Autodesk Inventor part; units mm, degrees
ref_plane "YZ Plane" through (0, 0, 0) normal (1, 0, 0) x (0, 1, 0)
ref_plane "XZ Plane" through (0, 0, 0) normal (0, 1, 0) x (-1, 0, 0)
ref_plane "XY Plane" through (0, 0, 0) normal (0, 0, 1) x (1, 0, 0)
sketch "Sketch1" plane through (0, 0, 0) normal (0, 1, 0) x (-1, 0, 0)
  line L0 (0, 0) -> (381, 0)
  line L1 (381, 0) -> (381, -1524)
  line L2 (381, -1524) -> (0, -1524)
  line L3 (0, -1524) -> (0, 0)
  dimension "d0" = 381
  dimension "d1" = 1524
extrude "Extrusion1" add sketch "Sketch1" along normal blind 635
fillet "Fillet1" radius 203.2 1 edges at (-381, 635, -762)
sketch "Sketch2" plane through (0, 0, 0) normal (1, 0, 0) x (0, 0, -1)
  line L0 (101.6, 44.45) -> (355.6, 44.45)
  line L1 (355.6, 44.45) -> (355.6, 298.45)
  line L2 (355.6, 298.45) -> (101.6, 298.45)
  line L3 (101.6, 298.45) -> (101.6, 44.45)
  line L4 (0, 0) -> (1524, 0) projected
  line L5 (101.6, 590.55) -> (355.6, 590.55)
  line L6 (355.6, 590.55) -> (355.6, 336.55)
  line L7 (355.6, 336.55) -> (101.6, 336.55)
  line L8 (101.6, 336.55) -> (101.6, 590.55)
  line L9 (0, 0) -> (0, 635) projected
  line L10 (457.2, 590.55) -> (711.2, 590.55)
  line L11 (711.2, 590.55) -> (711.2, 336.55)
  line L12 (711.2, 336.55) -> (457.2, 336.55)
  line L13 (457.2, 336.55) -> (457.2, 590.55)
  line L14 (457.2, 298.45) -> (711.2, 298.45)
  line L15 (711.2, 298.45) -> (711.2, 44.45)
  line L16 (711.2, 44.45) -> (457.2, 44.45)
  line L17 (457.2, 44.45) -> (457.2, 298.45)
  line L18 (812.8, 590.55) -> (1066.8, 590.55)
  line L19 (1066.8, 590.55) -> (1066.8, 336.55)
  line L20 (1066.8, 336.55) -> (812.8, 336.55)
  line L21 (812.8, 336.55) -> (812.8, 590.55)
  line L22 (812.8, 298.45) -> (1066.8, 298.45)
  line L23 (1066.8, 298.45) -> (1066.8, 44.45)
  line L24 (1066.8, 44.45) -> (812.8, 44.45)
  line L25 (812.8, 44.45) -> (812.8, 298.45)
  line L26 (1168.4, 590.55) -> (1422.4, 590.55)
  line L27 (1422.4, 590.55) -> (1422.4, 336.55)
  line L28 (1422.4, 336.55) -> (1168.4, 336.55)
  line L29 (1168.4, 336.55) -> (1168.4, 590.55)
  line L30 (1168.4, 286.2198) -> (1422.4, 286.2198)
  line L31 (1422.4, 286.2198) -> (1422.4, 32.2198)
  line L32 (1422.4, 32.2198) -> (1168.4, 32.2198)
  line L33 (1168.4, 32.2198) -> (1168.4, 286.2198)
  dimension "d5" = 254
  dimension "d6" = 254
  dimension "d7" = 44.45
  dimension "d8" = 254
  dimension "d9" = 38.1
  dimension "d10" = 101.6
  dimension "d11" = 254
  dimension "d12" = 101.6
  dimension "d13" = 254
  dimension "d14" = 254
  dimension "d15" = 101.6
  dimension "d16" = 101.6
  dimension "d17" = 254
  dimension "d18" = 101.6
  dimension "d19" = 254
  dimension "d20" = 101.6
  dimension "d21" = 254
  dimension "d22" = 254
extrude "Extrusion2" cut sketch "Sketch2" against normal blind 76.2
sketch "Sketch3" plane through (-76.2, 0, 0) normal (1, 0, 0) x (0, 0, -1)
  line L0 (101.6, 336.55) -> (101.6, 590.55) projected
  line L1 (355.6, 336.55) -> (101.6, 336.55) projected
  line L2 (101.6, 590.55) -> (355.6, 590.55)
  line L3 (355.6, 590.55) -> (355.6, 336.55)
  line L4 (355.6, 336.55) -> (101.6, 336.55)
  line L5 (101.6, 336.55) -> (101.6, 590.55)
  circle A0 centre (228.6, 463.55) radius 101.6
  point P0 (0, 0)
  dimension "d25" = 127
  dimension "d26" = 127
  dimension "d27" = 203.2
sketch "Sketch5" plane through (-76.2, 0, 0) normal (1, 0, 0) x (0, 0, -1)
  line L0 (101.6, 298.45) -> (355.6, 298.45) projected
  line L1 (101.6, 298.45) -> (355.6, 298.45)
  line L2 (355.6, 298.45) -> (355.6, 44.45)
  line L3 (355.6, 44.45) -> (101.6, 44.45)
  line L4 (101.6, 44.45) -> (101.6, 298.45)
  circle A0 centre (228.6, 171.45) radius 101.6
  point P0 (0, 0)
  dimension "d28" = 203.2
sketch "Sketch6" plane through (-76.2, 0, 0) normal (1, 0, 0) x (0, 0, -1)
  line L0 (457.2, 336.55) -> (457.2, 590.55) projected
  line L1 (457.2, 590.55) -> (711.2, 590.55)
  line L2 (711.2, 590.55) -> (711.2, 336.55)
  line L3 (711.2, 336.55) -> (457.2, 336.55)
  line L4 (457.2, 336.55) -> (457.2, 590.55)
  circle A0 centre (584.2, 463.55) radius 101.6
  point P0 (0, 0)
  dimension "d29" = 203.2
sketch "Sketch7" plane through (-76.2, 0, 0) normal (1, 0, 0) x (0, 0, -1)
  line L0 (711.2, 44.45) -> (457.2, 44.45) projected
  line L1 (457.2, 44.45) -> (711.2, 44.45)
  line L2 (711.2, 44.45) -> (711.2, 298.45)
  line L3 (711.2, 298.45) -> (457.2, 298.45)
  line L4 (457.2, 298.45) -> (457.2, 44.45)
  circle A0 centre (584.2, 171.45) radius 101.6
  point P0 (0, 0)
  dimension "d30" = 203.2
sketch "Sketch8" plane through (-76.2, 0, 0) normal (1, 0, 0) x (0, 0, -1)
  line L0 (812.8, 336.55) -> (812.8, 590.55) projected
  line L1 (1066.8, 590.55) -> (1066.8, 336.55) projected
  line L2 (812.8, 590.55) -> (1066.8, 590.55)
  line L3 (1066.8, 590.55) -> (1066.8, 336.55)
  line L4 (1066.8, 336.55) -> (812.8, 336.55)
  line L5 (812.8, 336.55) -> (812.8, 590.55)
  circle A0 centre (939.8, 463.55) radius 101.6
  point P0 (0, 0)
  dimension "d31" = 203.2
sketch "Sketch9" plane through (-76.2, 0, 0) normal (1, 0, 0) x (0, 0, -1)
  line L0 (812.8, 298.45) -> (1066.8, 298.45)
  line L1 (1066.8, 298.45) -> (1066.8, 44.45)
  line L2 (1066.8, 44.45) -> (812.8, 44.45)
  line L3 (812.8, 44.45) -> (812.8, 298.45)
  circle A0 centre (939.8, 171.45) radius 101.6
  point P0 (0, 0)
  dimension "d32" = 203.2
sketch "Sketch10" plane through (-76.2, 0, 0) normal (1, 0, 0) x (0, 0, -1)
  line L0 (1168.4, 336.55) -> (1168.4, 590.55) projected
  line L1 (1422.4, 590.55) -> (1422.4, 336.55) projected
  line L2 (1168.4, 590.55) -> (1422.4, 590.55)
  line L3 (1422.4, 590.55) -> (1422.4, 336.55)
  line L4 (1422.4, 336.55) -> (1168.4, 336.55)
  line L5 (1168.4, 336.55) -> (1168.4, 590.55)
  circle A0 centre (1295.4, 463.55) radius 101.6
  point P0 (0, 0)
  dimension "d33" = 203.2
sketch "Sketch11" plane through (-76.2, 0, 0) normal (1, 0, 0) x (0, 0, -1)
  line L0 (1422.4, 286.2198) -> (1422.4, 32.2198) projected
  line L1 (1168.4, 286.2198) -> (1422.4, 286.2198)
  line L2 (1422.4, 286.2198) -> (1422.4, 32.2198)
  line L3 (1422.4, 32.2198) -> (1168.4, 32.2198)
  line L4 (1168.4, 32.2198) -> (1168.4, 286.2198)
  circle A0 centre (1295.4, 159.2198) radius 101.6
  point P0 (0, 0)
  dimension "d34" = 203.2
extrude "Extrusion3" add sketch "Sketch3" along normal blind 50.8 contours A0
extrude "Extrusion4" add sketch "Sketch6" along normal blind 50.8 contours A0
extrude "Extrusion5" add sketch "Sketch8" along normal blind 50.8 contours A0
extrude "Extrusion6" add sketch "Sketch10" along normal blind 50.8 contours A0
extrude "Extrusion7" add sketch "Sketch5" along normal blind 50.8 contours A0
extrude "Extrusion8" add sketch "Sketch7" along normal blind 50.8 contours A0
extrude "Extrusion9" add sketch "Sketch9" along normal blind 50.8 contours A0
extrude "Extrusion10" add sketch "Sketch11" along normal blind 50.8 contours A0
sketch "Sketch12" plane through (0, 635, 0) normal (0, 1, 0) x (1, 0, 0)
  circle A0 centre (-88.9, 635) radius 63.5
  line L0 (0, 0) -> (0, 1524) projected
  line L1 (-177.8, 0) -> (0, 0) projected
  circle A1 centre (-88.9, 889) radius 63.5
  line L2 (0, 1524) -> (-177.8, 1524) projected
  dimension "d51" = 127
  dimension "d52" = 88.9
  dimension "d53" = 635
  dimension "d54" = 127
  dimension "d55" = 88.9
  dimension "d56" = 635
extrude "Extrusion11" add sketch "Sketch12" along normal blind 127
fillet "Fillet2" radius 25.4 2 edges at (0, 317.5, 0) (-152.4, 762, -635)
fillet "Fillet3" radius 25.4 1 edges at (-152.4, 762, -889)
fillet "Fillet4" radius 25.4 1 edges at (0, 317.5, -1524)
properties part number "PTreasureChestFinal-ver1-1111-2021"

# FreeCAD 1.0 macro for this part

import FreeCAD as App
import Part
import Sketcher
from FreeCAD import Vector
Q = App.Units.Quantity


def edges_at(feature, points):
    """Names of the edges that pass closest to the given points."""
    edges = feature.Shape.Edges
    near = lambda p: min(range(len(edges)), key=lambda i: edges[i].distToShape(Part.Vertex(*p))[0])
    return sorted({f"Edge{near(p) + 1}" for p in points})

doc = App.newDocument("Part")
params = doc.addObject("Spreadsheet::Sheet", "Params")
for row, (alias, value) in enumerate([
    ("sketch1_width", "15 in"),
    ("sketch1_height", "60 in"),
    ("pad1_length", "25 in"),
    ("fillet_radius", "8 in"),
    ("sketch2_width", "10 in"),
    ("pocket1_length", "3 in"),
    ("sketch3_diameter", "8 in"),
    ("pad2_length", "2 in"),
    ("sketch4_diameter", "8 in"),
    ("pad3_length", "2 in"),
    ("sketch5_diameter", "8 in"),
    ("pad4_length", "2 in"),
    ("sketch6_diameter", "8 in"),
    ("pad5_length", "2 in"),
    ("sketch7_diameter", "8 in"),
    ("pad6_length", "2 in"),
    ("sketch8_diameter", "8 in"),
    ("pad7_length", "2 in"),
    ("sketch9_diameter", "8 in"),
    ("pad8_length", "2 in"),
    ("sketch10_diameter", "8 in"),
    ("pad9_length", "2 in"),
    ("sketch11_diameter", "5 in"),
    ("pad10_length", "5 in"),
    ("fillet2_radius", "1 in"),
    ("fillet3_radius", "1 in"),
    ("fillet4_radius", "1 in"),
], start=1):
    params.set(f"A{row}", alias)
    params.set(f"B{row}", "=" + value)
    params.setAlias(f"B{row}", alias)

body = doc.addObject("PartDesign::Body", "Body")

# Sketch on XZ plane
sketch1 = body.newObject("Sketcher::SketchObject", "Sketch")
sketch1.AttachmentSupport = (doc.getObject("XZ_Plane"), [""])
sketch1.MapMode = "FlatFace"
sketch1.addGeometry(Part.LineSegment(Vector(-381, 0, 0), Vector(0, 0, 0)), False)
sketch1.addGeometry(Part.LineSegment(Vector(0, 0, 0), Vector(0, -1524, 0)), False)
sketch1.addGeometry(Part.LineSegment(Vector(0, -1524, 0), Vector(-381, -1524, 0)), False)
sketch1.addGeometry(Part.LineSegment(Vector(-381, -1524, 0), Vector(-381, 0, 0)), False)
sketch1.addConstraint(Sketcher.Constraint("Coincident", 0, 2, 1, 1))
sketch1.addConstraint(Sketcher.Constraint("Coincident", 1, 2, 2, 1))
sketch1.addConstraint(Sketcher.Constraint("Coincident", 2, 2, 3, 1))
sketch1.addConstraint(Sketcher.Constraint("Coincident", 3, 2, 0, 1))
sketch1.addConstraint(Sketcher.Constraint("Horizontal", 0))
sketch1.addConstraint(Sketcher.Constraint("Vertical", 1))
sketch1.addConstraint(Sketcher.Constraint("Horizontal", 2))
sketch1.addConstraint(Sketcher.Constraint("Vertical", 3))
sketch1.addConstraint(Sketcher.Constraint("Coincident", 0, 2, -1, 1))
sketch1.addConstraint(Sketcher.Constraint("DistanceX", 0, 1, 0, 2, Q("15 in")))
sketch1.addConstraint(Sketcher.Constraint("DistanceY", 1, 2, 1, 1, Q("60 in")))
sketch1.setExpression("Constraints[9]", "Params.sketch1_width")
sketch1.setExpression("Constraints[10]", "Params.sketch1_height")
pad1 = body.newObject("PartDesign::Pad", "Pad")
pad1.Profile = sketch1
pad1.setExpression("Length", "Params.pad1_length")
pad1.Reversed = True
doc.recompute()

fillet = body.newObject("PartDesign::Fillet", "Fillet")
fillet.Base = (pad1, edges_at(pad1, [(-381, 635, -762)]))
fillet.setExpression("Radius", "Params.fillet_radius")

# Sketch on YZ plane
sketch2 = body.newObject("Sketcher::SketchObject", "Sketch001")
sketch2.AttachmentSupport = (doc.getObject("YZ_Plane"), [""])
sketch2.MapMode = "FlatFace"
sketch2.addGeometry(Part.LineSegment(Vector(298.45, -101.6, 0), Vector(44.45, -101.6, 0)), False)
sketch2.addGeometry(Part.LineSegment(Vector(44.45, -101.6, 0), Vector(44.45, -355.6, 0)), False)
sketch2.addGeometry(Part.LineSegment(Vector(44.45, -355.6, 0), Vector(298.45, -355.6, 0)), False)
sketch2.addGeometry(Part.LineSegment(Vector(298.45, -355.6, 0), Vector(298.45, -101.6, 0)), False)
sketch2.addGeometry(Part.LineSegment(Vector(590.55, -355.6, 0), Vector(590.55, -101.6, 0)), False)
sketch2.addGeometry(Part.LineSegment(Vector(590.55, -101.6, 0), Vector(336.55, -101.6, 0)), False)
sketch2.addGeometry(Part.LineSegment(Vector(336.55, -101.6, 0), Vector(336.55, -355.6, 0)), False)
sketch2.addGeometry(Part.LineSegment(Vector(336.55, -355.6, 0), Vector(590.55, -355.6, 0)), False)
sketch2.addGeometry(Part.LineSegment(Vector(590.55, -711.2, 0), Vector(590.55, -457.2, 0)), False)
sketch2.addGeometry(Part.LineSegment(Vector(590.55, -457.2, 0), Vector(336.55, -457.2, 0)), False)
sketch2.addGeometry(Part.LineSegment(Vector(336.55, -457.2, 0), Vector(336.55, -711.2, 0)), False)
sketch2.addGeometry(Part.LineSegment(Vector(336.55, -711.2, 0), Vector(590.55, -711.2, 0)), False)
sketch2.addGeometry(Part.LineSegment(Vector(298.45, -711.2, 0), Vector(298.45, -457.2, 0)), False)
sketch2.addGeometry(Part.LineSegment(Vector(298.45, -457.2, 0), Vector(44.45, -457.2, 0)), False)
sketch2.addGeometry(Part.LineSegment(Vector(44.45, -457.2, 0), Vector(44.45, -711.2, 0)), False)
sketch2.addGeometry(Part.LineSegment(Vector(44.45, -711.2, 0), Vector(298.45, -711.2, 0)), False)
sketch2.addGeometry(Part.LineSegment(Vector(590.55, -1066.8, 0), Vector(590.55, -812.8, 0)), False)
sketch2.addGeometry(Part.LineSegment(Vector(590.55, -812.8, 0), Vector(336.55, -812.8, 0)), False)
sketch2.addGeometry(Part.LineSegment(Vector(336.55, -812.8, 0), Vector(336.55, -1066.8, 0)), False)
sketch2.addGeometry(Part.LineSegment(Vector(336.55, -1066.8, 0), Vector(590.55, -1066.8, 0)), False)
sketch2.addGeometry(Part.LineSegment(Vector(298.45, -1066.8, 0), Vector(298.45, -812.8, 0)), False)
sketch2.addGeometry(Part.LineSegment(Vector(298.45, -812.8, 0), Vector(44.45, -812.8, 0)), False)
sketch2.addGeometry(Part.LineSegment(Vector(44.45, -812.8, 0), Vector(44.45, -1066.8, 0)), False)
sketch2.addGeometry(Part.LineSegment(Vector(44.45, -1066.8, 0), Vector(298.45, -1066.8, 0)), False)
sketch2.addGeometry(Part.LineSegment(Vector(590.55, -1422.4, 0), Vector(590.55, -1168.4, 0)), False)
sketch2.addGeometry(Part.LineSegment(Vector(590.55, -1168.4, 0), Vector(336.55, -1168.4, 0)), False)
sketch2.addGeometry(Part.LineSegment(Vector(336.55, -1168.4, 0), Vector(336.55, -1422.4, 0)), False)
sketch2.addGeometry(Part.LineSegment(Vector(336.55, -1422.4, 0), Vector(590.55, -1422.4, 0)), False)
sketch2.addGeometry(Part.LineSegment(Vector(286.2198, -1422.4, 0), Vector(286.2198, -1168.4, 0)), False)
sketch2.addGeometry(Part.LineSegment(Vector(286.2198, -1168.4, 0), Vector(32.2198, -1168.4, 0)), False)
sketch2.addGeometry(Part.LineSegment(Vector(32.2198, -1168.4, 0), Vector(32.2198, -1422.4, 0)), False)
sketch2.addGeometry(Part.LineSegment(Vector(32.2198, -1422.4, 0), Vector(286.2198, -1422.4, 0)), False)
sketch2.addConstraint(Sketcher.Constraint("Coincident", 0, 2, 1, 1))
sketch2.addConstraint(Sketcher.Constraint("Coincident", 1, 2, 2, 1))
sketch2.addConstraint(Sketcher.Constraint("Coincident", 2, 2, 3, 1))
sketch2.addConstraint(Sketcher.Constraint("Coincident", 3, 2, 0, 1))
sketch2.addConstraint(Sketcher.Constraint("Coincident", 4, 2, 5, 1))
sketch2.addConstraint(Sketcher.Constraint("Coincident", 5, 2, 6, 1))
sketch2.addConstraint(Sketcher.Constraint("Coincident", 6, 2, 7, 1))
sketch2.addConstraint(Sketcher.Constraint("Coincident", 7, 2, 4, 1))
sketch2.addConstraint(Sketcher.Constraint("Coincident", 8, 2, 9, 1))
sketch2.addConstraint(Sketcher.Constraint("Coincident", 9, 2, 10, 1))
sketch2.addConstraint(Sketcher.Constraint("Coincident", 10, 2, 11, 1))
sketch2.addConstraint(Sketcher.Constraint("Coincident", 11, 2, 8, 1))
sketch2.addConstraint(Sketcher.Constraint("Coincident", 12, 2, 13, 1))
sketch2.addConstraint(Sketcher.Constraint("Coincident", 13, 2, 14, 1))
sketch2.addConstraint(Sketcher.Constraint("Coincident", 14, 2, 15, 1))
sketch2.addConstraint(Sketcher.Constraint("Coincident", 15, 2, 12, 1))
sketch2.addConstraint(Sketcher.Constraint("Coincident", 16, 2, 17, 1))
sketch2.addConstraint(Sketcher.Constraint("Coincident", 17, 2, 18, 1))
sketch2.addConstraint(Sketcher.Constraint("Coincident", 18, 2, 19, 1))
sketch2.addConstraint(Sketcher.Constraint("Coincident", 19, 2, 16, 1))
sketch2.addConstraint(Sketcher.Constraint("Coincident", 20, 2, 21, 1))
sketch2.addConstraint(Sketcher.Constraint("Coincident", 21, 2, 22, 1))
sketch2.addConstraint(Sketcher.Constraint("Coincident", 22, 2, 23, 1))
sketch2.addConstraint(Sketcher.Constraint("Coincident", 23, 2, 20, 1))
sketch2.addConstraint(Sketcher.Constraint("Coincident", 24, 2, 25, 1))
sketch2.addConstraint(Sketcher.Constraint("Coincident", 25, 2, 26, 1))
sketch2.addConstraint(Sketcher.Constraint("Coincident", 26, 2, 27, 1))
sketch2.addConstraint(Sketcher.Constraint("Coincident", 27, 2, 24, 1))
sketch2.addConstraint(Sketcher.Constraint("Coincident", 28, 2, 29, 1))
sketch2.addConstraint(Sketcher.Constraint("Coincident", 29, 2, 30, 1))
sketch2.addConstraint(Sketcher.Constraint("Coincident", 30, 2, 31, 1))
sketch2.addConstraint(Sketcher.Constraint("Coincident", 31, 2, 28, 1))
sketch2.addConstraint(Sketcher.Constraint("Horizontal", 0))
sketch2.addConstraint(Sketcher.Constraint("Vertical", 1))
sketch2.addConstraint(Sketcher.Constraint("Horizontal", 2))
sketch2.addConstraint(Sketcher.Constraint("Vertical", 3))
sketch2.addConstraint(Sketcher.Constraint("Vertical", 4))
sketch2.addConstraint(Sketcher.Constraint("Horizontal", 5))
sketch2.addConstraint(Sketcher.Constraint("Vertical", 6))
sketch2.addConstraint(Sketcher.Constraint("Horizontal", 7))
sketch2.addConstraint(Sketcher.Constraint("Vertical", 8))
sketch2.addConstraint(Sketcher.Constraint("Horizontal", 9))
sketch2.addConstraint(Sketcher.Constraint("Vertical", 10))
sketch2.addConstraint(Sketcher.Constraint("Horizontal", 11))
sketch2.addConstraint(Sketcher.Constraint("Vertical", 12))
sketch2.addConstraint(Sketcher.Constraint("Horizontal", 13))
sketch2.addConstraint(Sketcher.Constraint("Vertical", 14))
sketch2.addConstraint(Sketcher.Constraint("Horizontal", 15))
sketch2.addConstraint(Sketcher.Constraint("Vertical", 16))
sketch2.addConstraint(Sketcher.Constraint("Horizontal", 17))
sketch2.addConstraint(Sketcher.Constraint("Vertical", 18))
sketch2.addConstraint(Sketcher.Constraint("Horizontal", 19))
sketch2.addConstraint(Sketcher.Constraint("Vertical", 20))
sketch2.addConstraint(Sketcher.Constraint("Horizontal", 21))
sketch2.addConstraint(Sketcher.Constraint("Vertical", 22))
sketch2.addConstraint(Sketcher.Constraint("Horizontal", 23))
sketch2.addConstraint(Sketcher.Constraint("Vertical", 24))
sketch2.addConstraint(Sketcher.Constraint("Horizontal", 25))
sketch2.addConstraint(Sketcher.Constraint("Vertical", 26))
sketch2.addConstraint(Sketcher.Constraint("Horizontal", 27))
sketch2.addConstraint(Sketcher.Constraint("Vertical", 28))
sketch2.addConstraint(Sketcher.Constraint("Horizontal", 29))
sketch2.addConstraint(Sketcher.Constraint("Vertical", 30))
sketch2.addConstraint(Sketcher.Constraint("Horizontal", 31))
sketch2.addConstraint(Sketcher.Constraint("Horizontal", 3, 2, 4, 2))
sketch2.addConstraint(Sketcher.Constraint("Horizontal", 2, 2, 6, 2))
sketch2.addConstraint(Sketcher.Constraint("Horizontal", 9, 2, 12, 2))
sketch2.addConstraint(Sketcher.Constraint("Horizontal", 11, 2, 14, 2))
sketch2.addConstraint(Sketcher.Constraint("Horizontal", 17, 2, 20, 2))
sketch2.addConstraint(Sketcher.Constraint("Horizontal", 19, 2, 22, 2))
sketch2.addConstraint(Sketcher.Constraint("Horizontal", 25, 2, 28, 2))
sketch2.addConstraint(Sketcher.Constraint("Horizontal", 27, 2, 30, 2))
sketch2.addConstraint(Sketcher.Constraint("Vertical", 7, 2, 8, 2))
sketch2.addConstraint(Sketcher.Constraint("Vertical", 6, 2, 9, 2))
sketch2.addConstraint(Sketcher.Constraint("Vertical", 3, 2, 12, 2))
sketch2.addConstraint(Sketcher.Constraint("Vertical", 1, 2, 13, 2))
sketch2.addConstraint(Sketcher.Constraint("Vertical", 11, 2, 16, 2))
sketch2.addConstraint(Sketcher.Constraint("Vertical", 10, 2, 17, 2))
sketch2.addConstraint(Sketcher.Constraint("Vertical", 15, 2, 20, 2))
sketch2.addConstraint(Sketcher.Constraint("Vertical", 14, 2, 21, 2))
sketch2.addConstraint(Sketcher.Constraint("Vertical", 19, 2, 24, 2))
sketch2.addConstraint(Sketcher.Constraint("Vertical", 18, 2, 25, 2))
sketch2.addConstraint(Sketcher.Constraint("Equal", 2, 5))
sketch2.addConstraint(Sketcher.Constraint("Equal", 27, 29))
sketch2.addConstraint(Sketcher.Constraint("Equal", 31, 1))
sketch2.addConstraint(Sketcher.Constraint("Equal", 6, 8))
sketch2.addConstraint(Sketcher.Constraint("Equal", 14, 16))
sketch2.addConstraint(Sketcher.Constraint("Equal", 22, 24))
sketch2.addConstraint(Sketcher.Constraint("DistanceX", 0, 2, 0, 1, Q("10 in")))
sketch2.addConstraint(Sketcher.Constraint("DistanceY", 0, 2, -1, 1, Q("4 in")))
sketch2.addConstraint(Sketcher.Constraint("DistanceY", 8, 2, 7, 2, Q("4 in")))
sketch2.addConstraint(Sketcher.Constraint("DistanceY", 16, 2, 11, 2, Q("4 in")))
sketch2.addConstraint(Sketcher.Constraint("DistanceY", 24, 2, 19, 2, Q("4 in")))
sketch2.addConstraint(Sketcher.Constraint("DistanceX", 3, 2, 5, 2, Q("1.5 in")))
sketch2.addConstraint(Sketcher.Constraint("DistanceX", -1, 1, 0, 2, Q("1.75 in")))
sketch2.addConstraint(Sketcher.Constraint("DistanceX", -1, 1, 28, 2, Q("11.2685 in")))
sketch2.setExpression("Constraints[88]", "Params.sketch2_width")
pocket1 = body.newObject("PartDesign::Pocket", "Pocket")
pocket1.Profile = sketch2
pocket1.setExpression("Length", "Params.pocket1_length")

# Sketch on YZ plane
sketch3 = body.newObject("Sketcher::SketchObject", "Sketch002")
sketch3.AttachmentSupport = (doc.getObject("YZ_Plane"), [""])
sketch3.MapMode = "FlatFace"
sketch3.AttachmentOffset = App.Placement(Vector(0, 0, -3 * 25.4), App.Rotation())
sketch3.addGeometry(Part.Circle(Vector(463.55, -228.6, 0), Vector(0, 0, 1), 101.6), False)
sketch3.addConstraint(Sketcher.Constraint("Diameter", 0, Q("8 in")))
sketch3.addConstraint(Sketcher.Constraint("DistanceY", 0, 3, -1, 1, Q("9 in")))
sketch3.addConstraint(Sketcher.Constraint("DistanceX", -1, 1, 0, 3, Q("18.25 in")))
sketch3.setExpression("Constraints[0]", "Params.sketch3_diameter")
pad2 = body.newObject("PartDesign::Pad", "Pad001")
pad2.Profile = sketch3
pad2.setExpression("Length", "Params.pad2_length")

# Sketch on YZ plane
sketch4 = body.newObject("Sketcher::SketchObject", "Sketch003")
sketch4.AttachmentSupport = (doc.getObject("YZ_Plane"), [""])
sketch4.MapMode = "FlatFace"
sketch4.AttachmentOffset = App.Placement(Vector(0, 0, -3 * 25.4), App.Rotation())
sketch4.addGeometry(Part.Circle(Vector(463.55, -584.2, 0), Vector(0, 0, 1), 101.6), False)
sketch4.addConstraint(Sketcher.Constraint("Diameter", 0, Q("8 in")))
sketch4.addConstraint(Sketcher.Constraint("DistanceY", 0, 3, -1, 1, Q("23 in")))
sketch4.addConstraint(Sketcher.Constraint("DistanceX", -1, 1, 0, 3, Q("18.25 in")))
sketch4.setExpression("Constraints[0]", "Params.sketch4_diameter")
pad3 = body.newObject("PartDesign::Pad", "Pad002")
pad3.Profile = sketch4
pad3.setExpression("Length", "Params.pad3_length")

# Sketch on YZ plane
sketch5 = body.newObject("Sketcher::SketchObject", "Sketch004")
sketch5.AttachmentSupport = (doc.getObject("YZ_Plane"), [""])
sketch5.MapMode = "FlatFace"
sketch5.AttachmentOffset = App.Placement(Vector(0, 0, -3 * 25.4), App.Rotation())
sketch5.addGeometry(Part.Circle(Vector(463.55, -939.8, 0), Vector(0, 0, 1), 101.6), False)
sketch5.addConstraint(Sketcher.Constraint("Diameter", 0, Q("8 in")))
sketch5.addConstraint(Sketcher.Constraint("DistanceY", 0, 3, -1, 1, Q("37 in")))
sketch5.addConstraint(Sketcher.Constraint("DistanceX", -1, 1, 0, 3, Q("18.25 in")))
sketch5.setExpression("Constraints[0]", "Params.sketch5_diameter")
pad4 = body.newObject("PartDesign::Pad", "Pad003")
pad4.Profile = sketch5
pad4.setExpression("Length", "Params.pad4_length")

# Sketch on YZ plane
sketch6 = body.newObject("Sketcher::SketchObject", "Sketch005")
sketch6.AttachmentSupport = (doc.getObject("YZ_Plane"), [""])
sketch6.MapMode = "FlatFace"
sketch6.AttachmentOffset = App.Placement(Vector(0, 0, -3 * 25.4), App.Rotation())
sketch6.addGeometry(Part.Circle(Vector(463.55, -1295.4, 0), Vector(0, 0, 1), 101.6), False)
sketch6.addConstraint(Sketcher.Constraint("Diameter", 0, Q("8 in")))
sketch6.addConstraint(Sketcher.Constraint("DistanceY", 0, 3, -1, 1, Q("51 in")))
sketch6.addConstraint(Sketcher.Constraint("DistanceX", -1, 1, 0, 3, Q("18.25 in")))
sketch6.setExpression("Constraints[0]", "Params.sketch6_diameter")
pad5 = body.newObject("PartDesign::Pad", "Pad004")
pad5.Profile = sketch6
pad5.setExpression("Length", "Params.pad5_length")

# Sketch on YZ plane
sketch7 = body.newObject("Sketcher::SketchObject", "Sketch006")
sketch7.AttachmentSupport = (doc.getObject("YZ_Plane"), [""])
sketch7.MapMode = "FlatFace"
sketch7.AttachmentOffset = App.Placement(Vector(0, 0, -3 * 25.4), App.Rotation())
sketch7.addGeometry(Part.Circle(Vector(171.45, -228.6, 0), Vector(0, 0, 1), 101.6), False)
sketch7.addConstraint(Sketcher.Constraint("Diameter", 0, Q("8 in")))
sketch7.addConstraint(Sketcher.Constraint("DistanceY", 0, 3, -1, 1, Q("9 in")))
sketch7.addConstraint(Sketcher.Constraint("DistanceX", -1, 1, 0, 3, Q("6.75 in")))
sketch7.setExpression("Constraints[0]", "Params.sketch7_diameter")
pad6 = body.newObject("PartDesign::Pad", "Pad005")
pad6.Profile = sketch7
pad6.setExpression("Length", "Params.pad6_length")

# Sketch on YZ plane
sketch8 = body.newObject("Sketcher::SketchObject", "Sketch007")
sketch8.AttachmentSupport = (doc.getObject("YZ_Plane"), [""])
sketch8.MapMode = "FlatFace"
sketch8.AttachmentOffset = App.Placement(Vector(0, 0, -3 * 25.4), App.Rotation())
sketch8.addGeometry(Part.Circle(Vector(171.45, -584.2, 0), Vector(0, 0, 1), 101.6), False)
sketch8.addConstraint(Sketcher.Constraint("Diameter", 0, Q("8 in")))
sketch8.addConstraint(Sketcher.Constraint("DistanceY", 0, 3, -1, 1, Q("23 in")))
sketch8.addConstraint(Sketcher.Constraint("DistanceX", -1, 1, 0, 3, Q("6.75 in")))
sketch8.setExpression("Constraints[0]", "Params.sketch8_diameter")
pad7 = body.newObject("PartDesign::Pad", "Pad006")
pad7.Profile = sketch8
pad7.setExpression("Length", "Params.pad7_length")

# Sketch on YZ plane
sketch9 = body.newObject("Sketcher::SketchObject", "Sketch008")
sketch9.AttachmentSupport = (doc.getObject("YZ_Plane"), [""])
sketch9.MapMode = "FlatFace"
sketch9.AttachmentOffset = App.Placement(Vector(0, 0, -3 * 25.4), App.Rotation())
sketch9.addGeometry(Part.Circle(Vector(171.45, -939.8, 0), Vector(0, 0, 1), 101.6), False)
sketch9.addConstraint(Sketcher.Constraint("Diameter", 0, Q("8 in")))
sketch9.addConstraint(Sketcher.Constraint("DistanceY", 0, 3, -1, 1, Q("37 in")))
sketch9.addConstraint(Sketcher.Constraint("DistanceX", -1, 1, 0, 3, Q("6.75 in")))
sketch9.setExpression("Constraints[0]", "Params.sketch9_diameter")
pad8 = body.newObject("PartDesign::Pad", "Pad007")
pad8.Profile = sketch9
pad8.setExpression("Length", "Params.pad8_length")

# Sketch on YZ plane
sketch10 = body.newObject("Sketcher::SketchObject", "Sketch009")
sketch10.AttachmentSupport = (doc.getObject("YZ_Plane"), [""])
sketch10.MapMode = "FlatFace"
sketch10.AttachmentOffset = App.Placement(Vector(0, 0, -3 * 25.4), App.Rotation())
sketch10.addGeometry(Part.Circle(Vector(159.2198, -1295.4, 0), Vector(0, 0, 1), 101.6), False)
sketch10.addConstraint(Sketcher.Constraint("Diameter", 0, Q("8 in")))
sketch10.addConstraint(Sketcher.Constraint("DistanceY", 0, 3, -1, 1, Q("51 in")))
sketch10.addConstraint(Sketcher.Constraint("DistanceX", -1, 1, 0, 3, Q("6.2685 in")))
sketch10.setExpression("Constraints[0]", "Params.sketch10_diameter")
pad9 = body.newObject("PartDesign::Pad", "Pad008")
pad9.Profile = sketch10
pad9.setExpression("Length", "Params.pad9_length")

# Sketch on XZ plane
sketch11 = body.newObject("Sketcher::SketchObject", "Sketch010")
sketch11.AttachmentSupport = (doc.getObject("XZ_Plane"), [""])
sketch11.MapMode = "FlatFace"
sketch11.AttachmentOffset = App.Placement(Vector(0, 0, -25 * 25.4), App.Rotation())
sketch11.addGeometry(Part.Circle(Vector(-88.9, -635, 0), Vector(0, 0, 1), 63.5), False)
sketch11.addGeometry(Part.Circle(Vector(-88.9, -889, 0), Vector(0, 0, 1), 63.5), False)
sketch11.addConstraint(Sketcher.Constraint("Equal", 0, 1))
sketch11.addConstraint(Sketcher.Constraint("Vertical", 0, 3, 1, 3))
sketch11.addConstraint(Sketcher.Constraint("Diameter", 0, Q("5 in")))
sketch11.addConstraint(Sketcher.Constraint("DistanceY", 0, 3, -1, 1, Q("25 in")))
sketch11.addConstraint(Sketcher.Constraint("DistanceX", 0, 3, -1, 1, Q("3.5 in")))
sketch11.addConstraint(Sketcher.Constraint("DistanceY", 1, 3, -1, 1, Q("35 in")))
sketch11.setExpression("Constraints[2]", "Params.sketch11_diameter")
pad10 = body.newObject("PartDesign::Pad", "Pad009")
pad10.Profile = sketch11
pad10.setExpression("Length", "Params.pad10_length")
pad10.Reversed = True
doc.recompute()

fillet2 = body.newObject("PartDesign::Fillet", "Fillet001")
fillet2.Base = (pad10, edges_at(pad10, [(0, 317.5, 0), (-152.4, 762, -635)]))
fillet2.setExpression("Radius", "Params.fillet2_radius")
doc.recompute()

fillet3 = body.newObject("PartDesign::Fillet", "Fillet002")
fillet3.Base = (fillet2, edges_at(fillet2, [(-152.4, 762, -889)]))
fillet3.setExpression("Radius", "Params.fillet3_radius")
doc.recompute()

fillet4 = body.newObject("PartDesign::Fillet", "Fillet003")
fillet4.Base = (fillet3, edges_at(fillet3, [(0, 317.5, -1524)]))
fillet4.setExpression("Radius", "Params.fillet4_radius")

doc.recompute()
